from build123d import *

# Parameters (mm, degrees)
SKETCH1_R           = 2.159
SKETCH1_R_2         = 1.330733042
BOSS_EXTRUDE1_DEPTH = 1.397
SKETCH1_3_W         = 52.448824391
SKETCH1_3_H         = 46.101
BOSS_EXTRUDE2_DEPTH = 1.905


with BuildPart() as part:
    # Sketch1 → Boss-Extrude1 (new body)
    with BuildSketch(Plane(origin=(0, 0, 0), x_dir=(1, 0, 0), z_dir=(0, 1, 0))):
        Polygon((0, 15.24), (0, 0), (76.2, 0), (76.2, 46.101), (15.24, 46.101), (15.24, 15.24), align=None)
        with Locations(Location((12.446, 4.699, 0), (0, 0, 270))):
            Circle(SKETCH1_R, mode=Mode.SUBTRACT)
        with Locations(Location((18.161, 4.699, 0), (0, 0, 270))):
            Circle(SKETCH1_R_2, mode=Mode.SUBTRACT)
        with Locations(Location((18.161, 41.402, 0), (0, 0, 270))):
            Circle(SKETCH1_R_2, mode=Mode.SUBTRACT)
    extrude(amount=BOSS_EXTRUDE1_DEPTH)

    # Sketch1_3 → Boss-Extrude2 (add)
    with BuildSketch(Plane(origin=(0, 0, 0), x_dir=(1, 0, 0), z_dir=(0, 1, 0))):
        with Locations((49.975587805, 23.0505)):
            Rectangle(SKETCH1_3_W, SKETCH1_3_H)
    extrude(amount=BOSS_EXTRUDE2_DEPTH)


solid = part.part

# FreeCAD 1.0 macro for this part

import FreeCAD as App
import Part
import Sketcher

V = App.Vector
Q = App.Units.Quantity

doc = App.newDocument("Part")
params = doc.addObject("Spreadsheet::Sheet", "Params")
for row, (alias, value) in enumerate([
    ("sketch1_diameter", "0.17 in"),
    ("sketch1_width", "3 in"),
    ("sketch1_width2", "2.4 in"),
    ("sketch1_height", "1.815 in"),
    ("pad1_length", "0.055 in"),
    ("sketch2_height", "1.815 in"),
    ("pad2_length", "0.075 in"),
], start=1):
    params.set(f"A{row}", alias)
    params.set(f"B{row}", "=" + value)
    params.setAlias(f"B{row}", alias)

body = doc.addObject("PartDesign::Body", "Body")

sketch1 = body.newObject("Sketcher::SketchObject", "Sketch")
sketch1.AttachmentSupport = (doc.getObject("XZ_Plane"), [""])
sketch1.MapMode = "FlatFace"
sketch1.addGeometry(Part.LineSegment(V(0, -15.2, 0), V(0, 0, 0)), False)
sketch1.addGeometry(Part.LineSegment(V(0, 0, 0), V(76.2, 0, 0)), False)
sketch1.addGeometry(Part.LineSegment(V(76.2, 0, 0), V(76.2, -46.1, 0)), False)
sketch1.addGeometry(Part.LineSegment(V(76.2, -46.1, 0), V(15.2, -46.1, 0)), False)
sketch1.addGeometry(Part.LineSegment(V(15.2, -46.1, 0), V(15.2, -15.2, 0)), False)
sketch1.addGeometry(Part.LineSegment(V(15.2, -15.2, 0), V(0, -15.2, 0)), False)
sketch1.addGeometry(Part.Circle(V(12.4, -4.7, 0), V(0, 0, 1), 2.2), False)
sketch1.addGeometry(Part.Circle(V(18.2, -4.7, 0), V(0, 0, 1), 1.3), False)
sketch1.addGeometry(Part.Circle(V(18.2, -41.4, 0), V(0, 0, 1), 1.3), False)
sketch1.addConstraint(Sketcher.Constraint("Coincident", 0, 2, 1, 1))
sketch1.addConstraint(Sketcher.Constraint("Coincident", 1, 2, 2, 1))
sketch1.addConstraint(Sketcher.Constraint("Coincident", 2, 2, 3, 1))
sketch1.addConstraint(Sketcher.Constraint("Coincident", 3, 2, 4, 1))
sketch1.addConstraint(Sketcher.Constraint("Coincident", 4, 2, 5, 1))
sketch1.addConstraint(Sketcher.Constraint("Coincident", 5, 2, 0, 1))
sketch1.addConstraint(Sketcher.Constraint("Vertical", 0))
sketch1.addConstraint(Sketcher.Constraint("Horizontal", 1))
sketch1.addConstraint(Sketcher.Constraint("Vertical", 2))
sketch1.addConstraint(Sketcher.Constraint("Horizontal", 3))
sketch1.addConstraint(Sketcher.Constraint("Vertical", 4))
sketch1.addConstraint(Sketcher.Constraint("Horizontal", 5))
sketch1.addConstraint(Sketcher.Constraint("Coincident", 0, 2, -1, 1))
sketch1.addConstraint(Sketcher.Constraint("Equal", 7, 8))
sketch1.addConstraint(Sketcher.Constraint("Horizontal", 6, 3, 7, 3))
sketch1.addConstraint(Sketcher.Constraint("Vertical", 7, 3, 8, 3))
sketch1.addConstraint(Sketcher.Constraint("Equal", 5, 0))
sketch1.addConstraint(Sketcher.Constraint("Diameter", 6, Q("0.17 in")))
sketch1.addConstraint(Sketcher.Constraint("DistanceX", 1, 1, 1, 2, Q("3 in")))
sketch1.addConstraint(Sketcher.Constraint("DistanceX", 3, 2, 3, 1, Q("2.4 in")))
sketch1.addConstraint(Sketcher.Constraint("DistanceY", 2, 2, 2, 1, Q("1.815 in")))
sketch1.addConstraint(Sketcher.Constraint("DistanceX", -1, 1, 6, 3, Q("0.49 in")))
sketch1.addConstraint(Sketcher.Constraint("DistanceY", 8, 3, -1, 1, Q("1.63 in")))
sketch1.addConstraint(Sketcher.Constraint("DistanceY", 2, 2, 7, 3, Q("1.63 in")))
sketch1.addConstraint(Sketcher.Constraint("DistanceX", -1, 1, 7, 3, Q("0.715 in")))
sketch1.addConstraint(Sketcher.Constraint("Diameter", 7, 2.661466))
sketch1.setExpression("Constraints[17]", "Params.sketch1_diameter")
sketch1.setExpression("Constraints[18]", "Params.sketch1_width")
sketch1.setExpression("Constraints[19]", "Params.sketch1_width2")
sketch1.setExpression("Constraints[20]", "Params.sketch1_height")
pad1 = body.newObject("PartDesign::Pad", "Pad")
pad1.Profile = sketch1
pad1.setExpression("Length", "Params.pad1_length")
pad1.Reversed = True

sketch2 = body.newObject("Sketcher::SketchObject", "Sketch001")
sketch2.AttachmentSupport = (doc.getObject("XZ_Plane"), [""])
sketch2.MapMode = "FlatFace"
sketch2.addGeometry(Part.LineSegment(V(24, -46, 0), V(24, 0, 0)), False)
sketch2.addGeometry(Part.LineSegment(V(24, 0, 0), V(76, 0, 0)), False)
sketch2.addGeometry(Part.LineSegment(V(76, 0, 0), V(76, -46, 0)), False)
sketch2.addGeometry(Part.LineSegment(V(76, -46, 0), V(24, -46, 0)), False)
sketch2.addConstraint(Sketcher.Constraint("Coincident", 0, 2, 1, 1))
sketch2.addConstraint(Sketcher.Constraint("Coincident", 1, 2, 2, 1))
sketch2.addConstraint(Sketcher.Constraint("Coincident", 2, 2, 3, 1))
sketch2.addConstraint(Sketcher.Constraint("Coincident", 3, 2, 0, 1))
sketch2.addConstraint(Sketcher.Constraint("Vertical", 0))
sketch2.addConstraint(Sketcher.Constraint("Horizontal", 1))
sketch2.addConstraint(Sketcher.Constraint("Vertical", 2))
sketch2.addConstraint(Sketcher.Constraint("Horizontal", 3))
sketch2.addConstraint(Sketcher.Constraint("PointOnObject", 0, 2, -1))
sketch2.addConstraint(Sketcher.Constraint("DistanceX", -1, 1, 1, 2, Q("3 in")))
sketch2.addConstraint(Sketcher.Constraint("DistanceY", 0, 1, 0, 2, Q("1.815 in")))
sketch2.addConstraint(Sketcher.Constraint("DistanceX", 1, 1, 1, 2, 52.448824))
sketch2.setExpression("Constraints[10]", "Params.sketch2_height")
pad2 = body.newObject("PartDesign::Pad", "Pad001")
pad2.Profile = sketch2
pad2.setExpression("Length", "Params.pad2_length")
pad2.Reversed = True

doc.recompute()
